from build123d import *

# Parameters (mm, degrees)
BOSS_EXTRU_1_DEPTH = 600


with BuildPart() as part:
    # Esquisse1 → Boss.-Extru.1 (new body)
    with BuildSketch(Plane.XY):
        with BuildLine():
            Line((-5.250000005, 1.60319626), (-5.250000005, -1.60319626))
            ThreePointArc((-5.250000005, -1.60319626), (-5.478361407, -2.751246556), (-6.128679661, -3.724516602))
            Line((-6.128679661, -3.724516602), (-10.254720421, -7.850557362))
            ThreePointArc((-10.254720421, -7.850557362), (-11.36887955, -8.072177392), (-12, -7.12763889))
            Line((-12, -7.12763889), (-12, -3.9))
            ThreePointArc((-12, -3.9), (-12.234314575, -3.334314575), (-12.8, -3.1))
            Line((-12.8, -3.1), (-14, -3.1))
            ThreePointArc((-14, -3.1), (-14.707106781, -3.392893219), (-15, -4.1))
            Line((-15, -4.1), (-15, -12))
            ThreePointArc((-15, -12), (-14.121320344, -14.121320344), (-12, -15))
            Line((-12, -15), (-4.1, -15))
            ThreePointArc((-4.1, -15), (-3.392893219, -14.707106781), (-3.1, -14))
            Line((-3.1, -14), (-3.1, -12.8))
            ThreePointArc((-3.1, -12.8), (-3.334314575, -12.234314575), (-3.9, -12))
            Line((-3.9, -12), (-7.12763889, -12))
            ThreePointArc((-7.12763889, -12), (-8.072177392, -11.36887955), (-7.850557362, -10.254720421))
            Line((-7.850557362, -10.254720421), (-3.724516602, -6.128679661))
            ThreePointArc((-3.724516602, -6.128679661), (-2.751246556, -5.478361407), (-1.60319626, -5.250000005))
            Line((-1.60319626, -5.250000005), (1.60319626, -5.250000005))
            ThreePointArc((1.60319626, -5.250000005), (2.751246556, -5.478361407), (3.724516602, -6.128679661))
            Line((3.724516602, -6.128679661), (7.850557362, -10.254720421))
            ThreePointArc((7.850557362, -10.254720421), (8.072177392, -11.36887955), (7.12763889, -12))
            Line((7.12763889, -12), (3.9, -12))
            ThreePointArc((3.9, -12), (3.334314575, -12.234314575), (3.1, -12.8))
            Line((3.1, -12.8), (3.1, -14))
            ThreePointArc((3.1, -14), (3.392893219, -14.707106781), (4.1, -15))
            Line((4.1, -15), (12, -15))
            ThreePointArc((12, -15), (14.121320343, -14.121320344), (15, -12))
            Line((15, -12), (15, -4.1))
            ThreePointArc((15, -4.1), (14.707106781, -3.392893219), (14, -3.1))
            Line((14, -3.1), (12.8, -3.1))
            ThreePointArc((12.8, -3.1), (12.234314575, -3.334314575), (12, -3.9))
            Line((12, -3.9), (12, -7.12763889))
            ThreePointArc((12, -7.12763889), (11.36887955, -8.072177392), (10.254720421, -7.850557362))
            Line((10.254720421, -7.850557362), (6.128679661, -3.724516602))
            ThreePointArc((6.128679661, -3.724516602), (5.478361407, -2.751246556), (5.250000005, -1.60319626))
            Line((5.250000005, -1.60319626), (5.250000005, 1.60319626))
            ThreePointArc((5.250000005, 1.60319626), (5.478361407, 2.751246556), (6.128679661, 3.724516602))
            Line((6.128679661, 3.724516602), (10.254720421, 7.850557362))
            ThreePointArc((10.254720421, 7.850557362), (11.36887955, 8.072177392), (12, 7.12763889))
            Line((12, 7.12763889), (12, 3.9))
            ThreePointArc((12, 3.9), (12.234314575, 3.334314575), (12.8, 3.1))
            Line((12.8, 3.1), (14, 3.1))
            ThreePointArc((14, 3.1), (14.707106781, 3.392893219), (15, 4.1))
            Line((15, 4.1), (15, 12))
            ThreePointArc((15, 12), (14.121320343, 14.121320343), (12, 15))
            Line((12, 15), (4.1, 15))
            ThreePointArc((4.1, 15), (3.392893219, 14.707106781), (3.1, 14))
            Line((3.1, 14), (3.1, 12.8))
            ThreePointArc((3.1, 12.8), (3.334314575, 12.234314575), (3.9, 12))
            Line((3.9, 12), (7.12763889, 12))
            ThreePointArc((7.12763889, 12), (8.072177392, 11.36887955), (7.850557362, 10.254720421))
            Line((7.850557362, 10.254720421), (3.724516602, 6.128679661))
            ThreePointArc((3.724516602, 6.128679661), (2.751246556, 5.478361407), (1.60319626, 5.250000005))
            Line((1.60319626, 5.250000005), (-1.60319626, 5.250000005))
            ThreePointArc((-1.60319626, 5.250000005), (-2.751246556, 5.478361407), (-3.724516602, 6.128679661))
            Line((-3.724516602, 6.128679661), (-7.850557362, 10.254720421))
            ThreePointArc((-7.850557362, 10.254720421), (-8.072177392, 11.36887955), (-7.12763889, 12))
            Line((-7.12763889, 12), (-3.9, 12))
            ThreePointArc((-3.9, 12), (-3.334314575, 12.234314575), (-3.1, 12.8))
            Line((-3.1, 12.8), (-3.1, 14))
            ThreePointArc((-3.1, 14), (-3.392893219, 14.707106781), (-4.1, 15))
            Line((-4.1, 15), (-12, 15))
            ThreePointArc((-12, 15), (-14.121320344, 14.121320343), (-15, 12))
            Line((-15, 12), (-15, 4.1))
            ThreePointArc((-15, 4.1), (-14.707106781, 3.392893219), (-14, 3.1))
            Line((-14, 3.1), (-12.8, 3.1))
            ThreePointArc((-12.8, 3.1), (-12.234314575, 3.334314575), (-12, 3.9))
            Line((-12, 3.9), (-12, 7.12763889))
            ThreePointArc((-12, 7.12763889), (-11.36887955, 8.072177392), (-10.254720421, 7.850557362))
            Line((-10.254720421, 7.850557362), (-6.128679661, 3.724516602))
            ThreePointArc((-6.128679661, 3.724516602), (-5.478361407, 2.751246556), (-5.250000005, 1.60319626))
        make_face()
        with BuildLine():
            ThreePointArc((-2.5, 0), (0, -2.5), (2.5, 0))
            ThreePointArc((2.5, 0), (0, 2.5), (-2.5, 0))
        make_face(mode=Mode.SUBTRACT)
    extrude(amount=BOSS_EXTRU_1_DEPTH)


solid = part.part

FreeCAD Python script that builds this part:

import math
import FreeCAD as App
import Part
import Sketcher

V = App.Vector
Q = App.Units.Quantity

doc = App.newDocument("Part")
body = doc.addObject("PartDesign::Body", "Body")

# Sketch on XY plane
sketch1 = doc.addObject("Sketcher::SketchObject", "Sketch")
body.addObject(sketch1)
sketch1.AttachmentSupport = (doc.XY_Plane, [""])
sketch1.MapMode = "FlatFace"
sketch1.addGeometry([
    Part.LineSegment(V(-5.25, 1.603196, 0), V(-5.25, -1.603196, 0)),  # 0
    Part.ArcOfCircle(Part.Circle(V(-8.25, -1.603196, 0), V(0, 0, 1), 3), math.radians(-45), math.radians(0)),  # 1
    Part.LineSegment(V(-6.12868, -3.724517, 0), V(-10.25472, -7.850557, 0)),  # 2
    Part.ArcOfCircle(Part.Circle(V(-10.977639, -7.127639, 0), V(0, 0, 1), 1.022361), math.radians(180), math.radians(315)),  # 3
    Part.LineSegment(V(-12, -7.127639, 0), V(-12, -3.9, 0)),  # 4
    Part.ArcOfCircle(Part.Circle(V(-12.8, -3.9, 0), V(0, 0, 1), 0.8), math.radians(0), math.radians(90)),  # 5
    Part.LineSegment(V(-12.8, -3.1, 0), V(-14, -3.1, 0)),  # 6
    Part.ArcOfCircle(Part.Circle(V(-14, -4.1, 0), V(0, 0, 1), 1), math.radians(90), math.radians(180)),  # 7
    Part.LineSegment(V(-15, -4.1, 0), V(-15, -12, 0)),  # 8
    Part.ArcOfCircle(Part.Circle(V(-12, -12, 0), V(0, 0, 1), 3), math.radians(180), math.radians(270)),  # 9
    Part.LineSegment(V(-12, -15, 0), V(-4.1, -15, 0)),  # 10
    Part.ArcOfCircle(Part.Circle(V(-4.1, -14, 0), V(0, 0, 1), 1), math.radians(-90), math.radians(0)),  # 11
    Part.LineSegment(V(-3.1, -14, 0), V(-3.1, -12.8, 0)),  # 12
    Part.ArcOfCircle(Part.Circle(V(-3.9, -12.8, 0), V(0, 0, 1), 0.8), math.radians(0), math.radians(90)),  # 13
    Part.LineSegment(V(-3.9, -12, 0), V(-7.127639, -12, 0)),  # 14
    Part.ArcOfCircle(Part.Circle(V(-7.127639, -10.977639, 0), V(0, 0, 1), 1.022361), math.radians(135), math.radians(270)),  # 15
    Part.LineSegment(V(-7.850557, -10.25472, 0), V(-3.724517, -6.12868, 0)),  # 16
    Part.ArcOfCircle(Part.Circle(V(-1.603196, -8.25, 0), V(0, 0, 1), 3), math.radians(90), math.radians(135)),  # 17
    Part.LineSegment(V(-1.603196, -5.25, 0), V(1.603196, -5.25, 0)),  # 18
    Part.ArcOfCircle(Part.Circle(V(1.603196, -8.25, 0), V(0, 0, 1), 3), math.radians(45), math.radians(90)),  # 19
    Part.LineSegment(V(3.724517, -6.12868, 0), V(7.850557, -10.25472, 0)),  # 20
    Part.ArcOfCircle(Part.Circle(V(7.127639, -10.977639, 0), V(0, 0, 1), 1.022361), math.radians(-90), math.radians(45)),  # 21
    Part.LineSegment(V(7.127639, -12, 0), V(3.9, -12, 0)),  # 22
    Part.ArcOfCircle(Part.Circle(V(3.9, -12.8, 0), V(0, 0, 1), 0.8), math.radians(90), math.radians(180)),  # 23
    Part.LineSegment(V(3.1, -12.8, 0), V(3.1, -14, 0)),  # 24
    Part.ArcOfCircle(Part.Circle(V(4.1, -14, 0), V(0, 0, 1), 1), math.radians(-180), math.radians(-90)),  # 25
    Part.LineSegment(V(4.1, -15, 0), V(12, -15, 0)),  # 26
    Part.ArcOfCircle(Part.Circle(V(12, -12, 0), V(0, 0, 1), 3), math.radians(-90), math.radians(0)),  # 27
    Part.LineSegment(V(15, -12, 0), V(15, -4.1, 0)),  # 28
    Part.ArcOfCircle(Part.Circle(V(14, -4.1, 0), V(0, 0, 1), 1), math.radians(0), math.radians(90)),  # 29
    Part.LineSegment(V(14, -3.1, 0), V(12.8, -3.1, 0)),  # 30
    Part.ArcOfCircle(Part.Circle(V(12.8, -3.9, 0), V(0, 0, 1), 0.8), math.radians(90), math.radians(180)),  # 31
    Part.LineSegment(V(12, -3.9, 0), V(12, -7.127639, 0)),  # 32
    Part.ArcOfCircle(Part.Circle(V(10.977639, -7.127639, 0), V(0, 0, 1), 1.022361), math.radians(-135), math.radians(0)),  # 33
    Part.LineSegment(V(10.25472, -7.850557, 0), V(6.12868, -3.724517, 0)),  # 34
    Part.ArcOfCircle(Part.Circle(V(8.25, -1.603196, 0), V(0, 0, 1), 3), math.radians(180), math.radians(225)),  # 35
    Part.LineSegment(V(5.25, -1.603196, 0), V(5.25, 1.603196, 0)),  # 36
    Part.ArcOfCircle(Part.Circle(V(8.25, 1.603196, 0), V(0, 0, 1), 3), math.radians(135), math.radians(180)),  # 37
    Part.LineSegment(V(6.12868, 3.724517, 0), V(10.25472, 7.850557, 0)),  # 38
    Part.ArcOfCircle(Part.Circle(V(10.977639, 7.127639, 0), V(0, 0, 1), 1.022361), math.radians(0), math.radians(135)),  # 39
    Part.LineSegment(V(12, 7.127639, 0), V(12, 3.9, 0)),  # 40
    Part.ArcOfCircle(Part.Circle(V(12.8, 3.9, 0), V(0, 0, 1), 0.8), math.radians(180), math.radians(270)),  # 41
    Part.LineSegment(V(12.8, 3.1, 0), V(14, 3.1, 0)),  # 42
    Part.ArcOfCircle(Part.Circle(V(14, 4.1, 0), V(0, 0, 1), 1), math.radians(-90), math.radians(0)),  # 43
    Part.LineSegment(V(15, 4.1, 0), V(15, 12, 0)),  # 44
    Part.ArcOfCircle(Part.Circle(V(12, 12, 0), V(0, 0, 1), 3), math.radians(0), math.radians(90)),  # 45
    Part.LineSegment(V(12, 15, 0), V(4.1, 15, 0)),  # 46
    Part.ArcOfCircle(Part.Circle(V(4.1, 14, 0), V(0, 0, 1), 1), math.radians(90), math.radians(180)),  # 47
    Part.LineSegment(V(3.1, 14, 0), V(3.1, 12.8, 0)),  # 48
    Part.ArcOfCircle(Part.Circle(V(3.9, 12.8, 0), V(0, 0, 1), 0.8), math.radians(180), math.radians(270)),  # 49
    Part.LineSegment(V(3.9, 12, 0), V(7.127639, 12, 0)),  # 50
    Part.ArcOfCircle(Part.Circle(V(7.127639, 10.977639, 0), V(0, 0, 1), 1.022361), math.radians(-45), math.radians(90)),  # 51
    Part.LineSegment(V(7.850557, 10.25472, 0), V(3.724517, 6.12868, 0)),  # 52
    Part.ArcOfCircle(Part.Circle(V(1.603196, 8.25, 0), V(0, 0, 1), 3), math.radians(-90), math.radians(-45)),  # 53
    Part.LineSegment(V(1.603196, 5.25, 0), V(-1.603196, 5.25, 0)),  # 54
    Part.ArcOfCircle(Part.Circle(V(-1.603196, 8.25, 0), V(0, 0, 1), 3), math.radians(-135), math.radians(-90)),  # 55
    Part.LineSegment(V(-3.724517, 6.12868, 0), V(-7.850557, 10.25472, 0)),  # 56
    Part.ArcOfCircle(Part.Circle(V(-7.127639, 10.977639, 0), V(0, 0, 1), 1.022361), math.radians(90), math.radians(225)),  # 57
    Part.LineSegment(V(-7.127639, 12, 0), V(-3.9, 12, 0)),  # 58
    Part.ArcOfCircle(Part.Circle(V(-3.9, 12.8, 0), V(0, 0, 1), 0.8), math.radians(-90), math.radians(0)),  # 59
    Part.LineSegment(V(-3.1, 12.8, 0), V(-3.1, 14, 0)),  # 60
    Part.ArcOfCircle(Part.Circle(V(-4.1, 14, 0), V(0, 0, 1), 1), math.radians(0), math.radians(90)),  # 61
    Part.LineSegment(V(-4.1, 15, 0), V(-12, 15, 0)),  # 62
    Part.ArcOfCircle(Part.Circle(V(-12, 12, 0), V(0, 0, 1), 3), math.radians(90), math.radians(180)),  # 63
    Part.LineSegment(V(-15, 12, 0), V(-15, 4.1, 0)),  # 64
    Part.ArcOfCircle(Part.Circle(V(-14, 4.1, 0), V(0, 0, 1), 1), math.radians(-180), math.radians(-90)),  # 65
    Part.LineSegment(V(-14, 3.1, 0), V(-12.8, 3.1, 0)),  # 66
    Part.ArcOfCircle(Part.Circle(V(-12.8, 3.9, 0), V(0, 0, 1), 0.8), math.radians(-90), math.radians(0)),  # 67
    Part.LineSegment(V(-12, 3.9, 0), V(-12, 7.127639, 0)),  # 68
    Part.ArcOfCircle(Part.Circle(V(-10.977639, 7.127639, 0), V(0, 0, 1), 1.022361), math.radians(45), math.radians(180)),  # 69
    Part.LineSegment(V(-10.25472, 7.850557, 0), V(-6.12868, 3.724517, 0)),  # 70
    Part.ArcOfCircle(Part.Circle(V(-8.25, 1.603196, 0), V(0, 0, 1), 3), math.radians(0), math.radians(45)),  # 71
    Part.Circle(V(0, 0, 0), V(0, 0, 1), 2.5),  # 72
], False)
sketch1.addConstraint([
    Sketcher.Constraint("Tangent", 0, 2, 1, 2),
    Sketcher.Constraint("Tangent", 1, 1, 2, 1),
    Sketcher.Constraint("Tangent", 2, 2, 3, 2),
    Sketcher.Constraint("Tangent", 3, 1, 4, 1),
    Sketcher.Constraint("Tangent", 4, 2, 5, 1),
    Sketcher.Constraint("Tangent", 5, 2, 6, 1),
    Sketcher.Constraint("Tangent", 6, 2, 7, 1),
    Sketcher.Constraint("Tangent", 7, 2, 8, 1),
    Sketcher.Constraint("Tangent", 8, 2, 9, 1),
    Sketcher.Constraint("Tangent", 9, 2, 10, 1),
    Sketcher.Constraint("Tangent", 10, 2, 11, 1),
    Sketcher.Constraint("Tangent", 11, 2, 12, 1),
    Sketcher.Constraint("Tangent", 12, 2, 13, 1),
    Sketcher.Constraint("Tangent", 13, 2, 14, 1),
    Sketcher.Constraint("Tangent", 14, 2, 15, 2),
    Sketcher.Constraint("Tangent", 15, 1, 16, 1),
    Sketcher.Constraint("Tangent", 16, 2, 17, 2),
    Sketcher.Constraint("Tangent", 17, 1, 18, 1),
    Sketcher.Constraint("Tangent", 18, 2, 19, 2),
    Sketcher.Constraint("Tangent", 19, 1, 20, 1),
    Sketcher.Constraint("Tangent", 20, 2, 21, 2),
    Sketcher.Constraint("Tangent", 21, 1, 22, 1),
    Sketcher.Constraint("Tangent", 22, 2, 23, 1),
    Sketcher.Constraint("Tangent", 23, 2, 24, 1),
    Sketcher.Constraint("Tangent", 24, 2, 25, 1),
    Sketcher.Constraint("Tangent", 25, 2, 26, 1),
    Sketcher.Constraint("Tangent", 26, 2, 27, 1),
    Sketcher.Constraint("Tangent", 27, 2, 28, 1),
    Sketcher.Constraint("Tangent", 28, 2, 29, 1),
    Sketcher.Constraint("Tangent", 29, 2, 30, 1),
    Sketcher.Constraint("Tangent", 30, 2, 31, 1),
    Sketcher.Constraint("Tangent", 31, 2, 32, 1),
    Sketcher.Constraint("Tangent", 32, 2, 33, 2),
    Sketcher.Constraint("Tangent", 33, 1, 34, 1),
    Sketcher.Constraint("Tangent", 34, 2, 35, 2),
    Sketcher.Constraint("Tangent", 35, 1, 36, 1),
    Sketcher.Constraint("Tangent", 36, 2, 37, 2),
    Sketcher.Constraint("Tangent", 37, 1, 38, 1),
    Sketcher.Constraint("Tangent", 38, 2, 39, 2),
    Sketcher.Constraint("Tangent", 39, 1, 40, 1),
    Sketcher.Constraint("Tangent", 40, 2, 41, 1),
    Sketcher.Constraint("Tangent", 41, 2, 42, 1),
    Sketcher.Constraint("Tangent", 42, 2, 43, 1),
    Sketcher.Constraint("Tangent", 43, 2, 44, 1),
    Sketcher.Constraint("Tangent", 44, 2, 45, 1),
    Sketcher.Constraint("Tangent", 45, 2, 46, 1),
    Sketcher.Constraint("Tangent", 46, 2, 47, 1),
    Sketcher.Constraint("Tangent", 47, 2, 48, 1),
    Sketcher.Constraint("Tangent", 48, 2, 49, 1),
    Sketcher.Constraint("Tangent", 49, 2, 50, 1),
    Sketcher.Constraint("Tangent", 50, 2, 51, 2),
    Sketcher.Constraint("Tangent", 51, 1, 52, 1),
    Sketcher.Constraint("Tangent", 52, 2, 53, 2),
    Sketcher.Constraint("Tangent", 53, 1, 54, 1),
    Sketcher.Constraint("Tangent", 54, 2, 55, 2),
    Sketcher.Constraint("Tangent", 55, 1, 56, 1),
    Sketcher.Constraint("Tangent", 56, 2, 57, 2),
    Sketcher.Constraint("Tangent", 57, 1, 58, 1),
    Sketcher.Constraint("Tangent", 58, 2, 59, 1),
    Sketcher.Constraint("Tangent", 59, 2, 60, 1),
    Sketcher.Constraint("Tangent", 60, 2, 61, 1),
    Sketcher.Constraint("Tangent", 61, 2, 62, 1),
    Sketcher.Constraint("Tangent", 62, 2, 63, 1),
    Sketcher.Constraint("Tangent", 63, 2, 64, 1),
    Sketcher.Constraint("Tangent", 64, 2, 65, 1),
    Sketcher.Constraint("Tangent", 65, 2, 66, 1),
    Sketcher.Constraint("Tangent", 66, 2, 67, 1),
    Sketcher.Constraint("Tangent", 67, 2, 68, 1),
    Sketcher.Constraint("Tangent", 68, 2, 69, 2),
    Sketcher.Constraint("Tangent", 69, 1, 70, 1),
    Sketcher.Constraint("Tangent", 70, 2, 71, 2),
    Sketcher.Constraint("Tangent", 71, 1, 0, 1),
    Sketcher.Constraint("Vertical", 0),
    Sketcher.Constraint("Vertical", 4),
    Sketcher.Constraint("Horizontal", 6),
    Sketcher.Constraint("Vertical", 8),
    Sketcher.Constraint("Horizontal", 10),
    Sketcher.Constraint("Vertical", 12),
    Sketcher.Constraint("Horizontal", 14),
    Sketcher.Constraint("Horizontal", 18),
    Sketcher.Constraint("Horizontal", 22),
    Sketcher.Constraint("Vertical", 24),
    Sketcher.Constraint("Horizontal", 26),
    Sketcher.Constraint("Vertical", 28),
    Sketcher.Constraint("Horizontal", 30),
    Sketcher.Constraint("Vertical", 32),
    Sketcher.Constraint("Vertical", 36),
    Sketcher.Constraint("Vertical", 40),
    Sketcher.Constraint("Horizontal", 42),
    Sketcher.Constraint("Vertical", 44),
    Sketcher.Constraint("Horizontal", 46),
    Sketcher.Constraint("Vertical", 48),
    Sketcher.Constraint("Horizontal", 50),
    Sketcher.Constraint("Horizontal", 54),
    Sketcher.Constraint("Horizontal", 58),
    Sketcher.Constraint("Vertical", 60),
    Sketcher.Constraint("Horizontal", 62),
    Sketcher.Constraint("Vertical", 64),
    Sketcher.Constraint("Horizontal", 66),
    Sketcher.Constraint("Vertical", 68),
    Sketcher.Constraint("Coincident", 72, 3, -1, 1),
    Sketcher.Constraint("Equal", 1, 9),
    Sketcher.Constraint("Equal", 7, 11),
    Sketcher.Constraint("Equal", 5, 13),
    Sketcher.Constraint("Equal", 3, 15),
    Sketcher.Constraint("Equal", 9, 17),
    Sketcher.Constraint("Equal", 17, 19),
    Sketcher.Constraint("Equal", 15, 21),
    Sketcher.Constraint("Equal", 13, 23),
    Sketcher.Constraint("Equal", 11, 25),
    Sketcher.Constraint("Equal", 19, 27),
    Sketcher.Constraint("Equal", 25, 29),
    Sketcher.Constraint("Equal", 23, 31),
    Sketcher.Constraint("Equal", 21, 33),
    Sketcher.Constraint("Equal", 27, 35),
    Sketcher.Constraint("Equal", 35, 37),
    Sketcher.Constraint("Equal", 33, 39),
    Sketcher.Constraint("Equal", 31, 41),
    Sketcher.Constraint("Equal", 29, 43),
    Sketcher.Constraint("Equal", 37, 45),
    Sketcher.Constraint("Equal", 43, 47),
    Sketcher.Constraint("Equal", 41, 49),
    Sketcher.Constraint("Equal", 39, 51),
    Sketcher.Constraint("Equal", 45, 53),
    Sketcher.Constraint("Equal", 53, 55),
    Sketcher.Constraint("Equal", 51, 57),
    Sketcher.Constraint("Equal", 49, 59),
    Sketcher.Constraint("Equal", 47, 61),
    Sketcher.Constraint("Equal", 55, 63),
    Sketcher.Constraint("Equal", 61, 65),
    Sketcher.Constraint("Equal", 59, 67),
    Sketcher.Constraint("Equal", 57, 69),
    Sketcher.Constraint("Equal", 63, 71),
    Sketcher.Constraint("Symmetric", 1, 3, 37, 3, -1, 1),
    Sketcher.Constraint("Symmetric", 3, 3, 39, 3, -1, 1),
    Sketcher.Constraint("Symmetric", 7, 3, 43, 3, -1, 1),
    Sketcher.Constraint("Symmetric", 11, 3, 47, 3, -1, 1),
    Sketcher.Constraint("Symmetric", 15, 3, 51, 3, -1, 1),
    Sketcher.Constraint("Symmetric", 17, 3, 53, 3, -1, 1),
    Sketcher.Constraint("Symmetric", 21, 3, 57, 3, -1, 1),
    Sketcher.Constraint("Symmetric", 25, 3, 61, 3, -1, 1),
    Sketcher.Constraint("Symmetric", 29, 3, 65, 3, -1, 1),
    Sketcher.Constraint("Symmetric", 33, 3, 69, 3, -1, 1),
    Sketcher.Constraint("Symmetric", 15, 3, 21, 3, -2),
    Sketcher.Constraint("Symmetric", 11, 3, 25, 3, -2),
    Sketcher.Constraint("Symmetric", 7, 3, 29, 3, -2),
    Sketcher.Constraint("Symmetric", 3, 3, 33, 3, -2),
    Sketcher.Constraint("Parallel", 2, 16),
    Sketcher.Constraint("Perpendicular", 16, 20),
    Sketcher.Constraint("Parallel", 20, 34),
    Sketcher.Constraint("Perpendicular", 52, 56),
    Sketcher.Constraint("Parallel", 56, 70),
    Sketcher.Constraint("Horizontal", 1, 3, 35, 3),
    Sketcher.Constraint("Horizontal", 8, 2, 13, 2),
    Sketcher.Constraint("Vertical", 63, 3, 3, 1),
    Sketcher.Constraint("Equal", 54, 0),
    Sketcher.Constraint("Equal", 58, 4),
    Sketcher.Constraint("Equal", 62, 8),
    Sketcher.Constraint("Equal", 2, 16),
    Sketcher.Constraint("Diameter", 72, Q("5 mm")),
    Sketcher.Constraint("Radius", 1, Q("3 mm")),
    Sketcher.Constraint("Radius", 7, Q("1 mm")),
    Sketcher.Constraint("Radius", 5, Q("0.8 mm")),
    Sketcher.Constraint("DistanceX", 10, 1, 10, 2, Q("7.9 mm")),
    Sketcher.Constraint("DistanceX", 7, 3, -1, 1, Q("14 mm")),
    Sketcher.Constraint("DistanceX", 1, 3, -1, 1, Q("8.25 mm")),
    Sketcher.Constraint("Radius", 3, Q("1.022361 mm")),
    Sketcher.Constraint("DistanceX", 14, 2, 14, 1, Q("3.227639 mm")),
])
pad1 = doc.addObject("PartDesign::Pad", "Pad")
body.addObject(pad1)
pad1.Profile = sketch1
pad1.Length = 600

doc.recompute()
